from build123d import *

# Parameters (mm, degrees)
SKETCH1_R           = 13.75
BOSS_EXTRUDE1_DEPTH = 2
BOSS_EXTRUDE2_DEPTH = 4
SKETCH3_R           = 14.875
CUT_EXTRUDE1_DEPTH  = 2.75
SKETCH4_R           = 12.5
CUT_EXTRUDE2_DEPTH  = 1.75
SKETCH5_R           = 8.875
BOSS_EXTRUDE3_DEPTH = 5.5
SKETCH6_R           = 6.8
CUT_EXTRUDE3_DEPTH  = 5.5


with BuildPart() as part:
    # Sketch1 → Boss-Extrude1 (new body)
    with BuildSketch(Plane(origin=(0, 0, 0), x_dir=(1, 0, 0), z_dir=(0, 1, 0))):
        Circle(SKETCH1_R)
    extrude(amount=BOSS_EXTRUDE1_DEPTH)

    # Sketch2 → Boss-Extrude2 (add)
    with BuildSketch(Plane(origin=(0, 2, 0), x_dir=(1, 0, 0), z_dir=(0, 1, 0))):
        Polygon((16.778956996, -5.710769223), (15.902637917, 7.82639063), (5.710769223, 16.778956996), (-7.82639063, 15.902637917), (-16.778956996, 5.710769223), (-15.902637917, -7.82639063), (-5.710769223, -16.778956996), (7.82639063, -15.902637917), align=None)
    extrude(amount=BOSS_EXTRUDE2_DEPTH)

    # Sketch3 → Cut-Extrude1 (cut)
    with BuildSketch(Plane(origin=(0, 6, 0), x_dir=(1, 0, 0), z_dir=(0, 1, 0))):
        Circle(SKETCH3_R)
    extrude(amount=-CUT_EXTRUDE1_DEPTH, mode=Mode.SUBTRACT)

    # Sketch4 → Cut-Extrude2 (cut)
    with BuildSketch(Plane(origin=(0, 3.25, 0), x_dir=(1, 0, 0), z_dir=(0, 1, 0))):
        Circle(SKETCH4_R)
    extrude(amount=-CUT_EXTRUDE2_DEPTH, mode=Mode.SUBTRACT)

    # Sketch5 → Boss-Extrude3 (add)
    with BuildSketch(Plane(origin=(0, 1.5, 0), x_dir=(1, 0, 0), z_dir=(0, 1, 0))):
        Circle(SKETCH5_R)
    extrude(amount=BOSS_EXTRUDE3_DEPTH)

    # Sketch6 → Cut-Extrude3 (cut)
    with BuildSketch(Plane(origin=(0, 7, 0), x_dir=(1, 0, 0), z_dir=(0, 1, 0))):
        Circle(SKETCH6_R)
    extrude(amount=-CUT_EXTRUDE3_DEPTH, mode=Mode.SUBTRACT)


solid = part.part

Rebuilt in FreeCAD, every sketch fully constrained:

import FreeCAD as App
import Part
import Sketcher

V = App.Vector


def add_polygon(sketch, points):
    """Adds a closed chain of lines whose ends are joined by coincident constraints."""
    first, n = sketch.GeometryCount, len(points)
    for a, b in zip(points, points[1:] + points[:1]):
        sketch.addGeometry(Part.LineSegment(App.Vector(*a, 0), App.Vector(*b, 0)), False)
    for i in range(n):
        sketch.addConstraint(Sketcher.Constraint("Coincident", first + i, 2, first + (i + 1) % n, 1))

doc = App.newDocument("Part")
params = doc.addObject("Spreadsheet::Sheet", "Params")
for row, (alias, value) in enumerate([
    ("sketch1_diameter", "27.5 mm"),
    ("pad1_length", "2 mm"),
    ("pad2_length", "4 mm"),
    ("sketch3_diameter", "29.75 mm"),
    ("pocket1_length", "2.75 mm"),
    ("sketch4_diameter", "25 mm"),
    ("pocket2_length", "1.75 mm"),
    ("sketch5_diameter", "17.75 mm"),
    ("pad3_length", "5.5 mm"),
    ("sketch6_diameter", "13.6 mm"),
    ("pocket3_length", "5.5 mm"),
], start=1):
    params.set(f"A{row}", alias)
    params.set(f"B{row}", "=" + value)
    params.setAlias(f"B{row}", alias)

body = doc.addObject("PartDesign::Body", "Body")

# Sketch on XZ plane
sketch1 = body.newObject("Sketcher::SketchObject", "Sketch")
sketch1.AttachmentSupport = (doc.getObject("XZ_Plane"), [""])
sketch1.MapMode = "FlatFace"
sketch1.addGeometry(Part.Circle(V(0, 0, 0), V(0, 0, 1), 14), False)
sketch1.addConstraint([
    Sketcher.Constraint("Coincident", 0, 3, -1, 1),
    Sketcher.Constraint("Diameter", 0, 27.5),
])
sketch1.setExpression("Constraints[1]", "Params.sketch1_diameter")
pad1 = body.newObject("PartDesign::Pad", "Pad")
pad1.Profile = sketch1
pad1.setExpression("Length", "Params.pad1_length")
pad1.Reversed = True

# Sketch on XZ plane
sketch2 = body.newObject("Sketcher::SketchObject", "Sketch001")
sketch2.AttachmentSupport = (doc.getObject("XZ_Plane"), [""])
sketch2.MapMode = "FlatFace"
sketch2.AttachmentOffset = App.Placement(V(0, 0, -2), App.Rotation())
add_polygon(sketch2, [(17, 6), (16, -8), (6, -17), (-8, -16), (-17, -6), (-16, 8), (-6, 17), (8, 16)])  # lines 0-7
sketch2.addConstraint([
    Sketcher.Constraint("Symmetric", 0, 2, 4, 2, -1, 1),
    Sketcher.Constraint("Symmetric", 1, 2, 5, 2, -1, 1),
    Sketcher.Constraint("Symmetric", 2, 2, 6, 2, -1, 1),
    Sketcher.Constraint("Symmetric", 3, 2, 7, 2, -1, 1),
    Sketcher.Constraint("Perpendicular", 0, 2),
    Sketcher.Constraint("Perpendicular", 1, 3),
    Sketcher.Constraint("Equal", 0, 1),
    Sketcher.Constraint("Equal", 1, 2),
    Sketcher.Constraint("Equal", 2, 3),
    Sketcher.Constraint("DistanceY", 0, 2, -1, 1, 7.826391),
    Sketcher.Constraint("DistanceX", -1, 1, 1, 2, 5.710769),
    Sketcher.Constraint("DistanceX", 1, 2, 0, 2, 10.191869),
])
pad2 = body.newObject("PartDesign::Pad", "Pad001")
pad2.Profile = sketch2
pad2.setExpression("Length", "Params.pad2_length")
pad2.Reversed = True

# Sketch on XZ plane
sketch3 = body.newObject("Sketcher::SketchObject", "Sketch002")
sketch3.AttachmentSupport = (doc.getObject("XZ_Plane"), [""])
sketch3.MapMode = "FlatFace"
sketch3.AttachmentOffset = App.Placement(V(0, 0, -6), App.Rotation())
sketch3.addGeometry(Part.Circle(V(0, 0, 0), V(0, 0, 1), 15), False)
sketch3.addConstraint([
    Sketcher.Constraint("Coincident", 0, 3, -1, 1),
    Sketcher.Constraint("Diameter", 0, 29.75),
])
sketch3.setExpression("Constraints[1]", "Params.sketch3_diameter")
pocket1 = body.newObject("PartDesign::Pocket", "Pocket")
pocket1.Profile = sketch3
pocket1.setExpression("Length", "Params.pocket1_length")
pocket1.Reversed = True

# Sketch on XZ plane
sketch4 = body.newObject("Sketcher::SketchObject", "Sketch003")
sketch4.AttachmentSupport = (doc.getObject("XZ_Plane"), [""])
sketch4.MapMode = "FlatFace"
sketch4.AttachmentOffset = App.Placement(V(0, 0, -3.25), App.Rotation())
sketch4.addGeometry(Part.Circle(V(0, 0, 0), V(0, 0, 1), 12), False)
sketch4.addConstraint([
    Sketcher.Constraint("Coincident", 0, 3, -1, 1),
    Sketcher.Constraint("Diameter", 0, 25.0),
])
sketch4.setExpression("Constraints[1]", "Params.sketch4_diameter")
pocket2 = body.newObject("PartDesign::Pocket", "Pocket001")
pocket2.Profile = sketch4
pocket2.setExpression("Length", "Params.pocket2_length")
pocket2.Reversed = True

# Sketch on XZ plane
sketch5 = body.newObject("Sketcher::SketchObject", "Sketch004")
sketch5.AttachmentSupport = (doc.getObject("XZ_Plane"), [""])
sketch5.MapMode = "FlatFace"
sketch5.AttachmentOffset = App.Placement(V(0, 0, -1.5), App.Rotation())
sketch5.addGeometry(Part.Circle(V(0, 0, 0), V(0, 0, 1), 9), False)
sketch5.addConstraint([
    Sketcher.Constraint("Coincident", 0, 3, -1, 1),
    Sketcher.Constraint("Diameter", 0, 17.75),
])
sketch5.setExpression("Constraints[1]", "Params.sketch5_diameter")
pad3 = body.newObject("PartDesign::Pad", "Pad002")
pad3.Profile = sketch5
pad3.setExpression("Length", "Params.pad3_length")
pad3.Reversed = True

# Sketch on XZ plane
sketch6 = body.newObject("Sketcher::SketchObject", "Sketch005")
sketch6.AttachmentSupport = (doc.getObject("XZ_Plane"), [""])
sketch6.MapMode = "FlatFace"
sketch6.AttachmentOffset = App.Placement(V(0, 0, -7), App.Rotation())
sketch6.addGeometry(Part.Circle(V(0, 0, 0), V(0, 0, 1), 7), False)
sketch6.addConstraint([
    Sketcher.Constraint("Coincident", 0, 3, -1, 1),
    Sketcher.Constraint("Diameter", 0, 13.6),
])
sketch6.setExpression("Constraints[1]", "Params.sketch6_diameter")
pocket3 = body.newObject("PartDesign::Pocket", "Pocket002")
pocket3.Profile = sketch6
pocket3.setExpression("Length", "Params.pocket3_length")
pocket3.Reversed = True

doc.recompute()
